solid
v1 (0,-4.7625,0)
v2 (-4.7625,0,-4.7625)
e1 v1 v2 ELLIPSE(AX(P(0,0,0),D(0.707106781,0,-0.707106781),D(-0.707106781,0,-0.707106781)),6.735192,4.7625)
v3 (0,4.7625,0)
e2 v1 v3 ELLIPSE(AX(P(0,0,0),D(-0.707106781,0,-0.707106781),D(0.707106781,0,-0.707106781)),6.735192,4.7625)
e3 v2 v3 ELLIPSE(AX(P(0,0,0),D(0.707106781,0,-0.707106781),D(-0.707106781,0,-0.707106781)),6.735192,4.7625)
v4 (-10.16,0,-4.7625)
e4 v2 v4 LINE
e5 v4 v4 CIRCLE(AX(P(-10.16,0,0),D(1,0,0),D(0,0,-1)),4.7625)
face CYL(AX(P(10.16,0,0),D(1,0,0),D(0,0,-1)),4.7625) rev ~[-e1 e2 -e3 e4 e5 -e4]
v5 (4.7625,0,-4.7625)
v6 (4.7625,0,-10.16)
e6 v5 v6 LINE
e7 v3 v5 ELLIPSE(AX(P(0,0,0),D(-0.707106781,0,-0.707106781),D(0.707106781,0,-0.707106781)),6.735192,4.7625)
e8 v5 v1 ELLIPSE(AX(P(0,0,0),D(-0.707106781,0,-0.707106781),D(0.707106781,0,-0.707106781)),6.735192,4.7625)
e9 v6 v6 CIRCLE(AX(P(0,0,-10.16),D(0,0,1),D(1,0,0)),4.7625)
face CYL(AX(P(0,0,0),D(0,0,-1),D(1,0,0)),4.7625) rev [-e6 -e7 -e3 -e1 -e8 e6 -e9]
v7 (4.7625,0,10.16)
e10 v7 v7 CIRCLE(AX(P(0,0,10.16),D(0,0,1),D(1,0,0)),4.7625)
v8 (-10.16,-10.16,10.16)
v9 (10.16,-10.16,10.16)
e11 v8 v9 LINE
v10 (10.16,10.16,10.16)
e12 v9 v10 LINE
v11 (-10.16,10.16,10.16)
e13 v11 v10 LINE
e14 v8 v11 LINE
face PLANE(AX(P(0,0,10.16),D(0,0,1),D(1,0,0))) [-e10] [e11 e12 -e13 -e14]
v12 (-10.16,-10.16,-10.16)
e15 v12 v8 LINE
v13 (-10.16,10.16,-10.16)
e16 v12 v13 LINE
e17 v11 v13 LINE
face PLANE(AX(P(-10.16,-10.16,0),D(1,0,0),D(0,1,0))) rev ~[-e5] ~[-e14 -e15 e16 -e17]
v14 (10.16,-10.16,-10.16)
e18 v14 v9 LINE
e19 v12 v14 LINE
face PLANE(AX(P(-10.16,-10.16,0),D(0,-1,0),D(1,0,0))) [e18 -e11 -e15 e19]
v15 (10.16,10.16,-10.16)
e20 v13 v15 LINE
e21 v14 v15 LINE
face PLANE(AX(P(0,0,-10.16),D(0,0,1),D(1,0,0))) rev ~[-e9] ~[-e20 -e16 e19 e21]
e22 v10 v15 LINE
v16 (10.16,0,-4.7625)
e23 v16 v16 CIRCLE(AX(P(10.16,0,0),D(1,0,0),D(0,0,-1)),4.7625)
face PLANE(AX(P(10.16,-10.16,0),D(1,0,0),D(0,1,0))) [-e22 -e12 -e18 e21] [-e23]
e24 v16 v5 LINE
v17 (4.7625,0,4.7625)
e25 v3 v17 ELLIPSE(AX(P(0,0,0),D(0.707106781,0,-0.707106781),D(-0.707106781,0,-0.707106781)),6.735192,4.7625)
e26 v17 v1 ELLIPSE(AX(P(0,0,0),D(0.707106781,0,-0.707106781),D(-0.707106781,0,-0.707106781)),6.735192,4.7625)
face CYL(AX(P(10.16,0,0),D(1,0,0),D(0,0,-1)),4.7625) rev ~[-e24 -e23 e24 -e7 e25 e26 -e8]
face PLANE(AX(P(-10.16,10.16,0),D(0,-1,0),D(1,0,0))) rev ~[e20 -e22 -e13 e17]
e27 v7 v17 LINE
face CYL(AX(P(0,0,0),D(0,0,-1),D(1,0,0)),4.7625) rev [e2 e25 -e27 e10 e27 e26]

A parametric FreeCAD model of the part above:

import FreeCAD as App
import Part
import Sketcher
from FreeCAD import Vector
Q = App.Units.Quantity


def add_polygon(sketch, points):
    """Adds a closed chain of lines whose ends are joined by coincident constraints."""
    first, n = sketch.GeometryCount, len(points)
    for a, b in zip(points, points[1:] + points[:1]):
        sketch.addGeometry(Part.LineSegment(App.Vector(*a, 0), App.Vector(*b, 0)), False)
    for i in range(n):
        sketch.addConstraint(Sketcher.Constraint("Coincident", first + i, 2, first + (i + 1) % n, 1))

doc = App.newDocument("Part")
params = doc.addObject("Spreadsheet::Sheet", "Params")
for row, (alias, value) in enumerate([
    ("sketch1_diameter", "0.375 in"),
    ("sketch1_width", "0.8 in"),
    ("pad1_length", "0.8 in"),
    ("sketch2_diameter", "0.375 in"),
], start=1):
    params.set(f"A{row}", alias)
    params.set(f"B{row}", "=" + value)
    params.setAlias(f"B{row}", alias)

body = doc.addObject("PartDesign::Body", "Body")

sketch1 = body.newObject("Sketcher::SketchObject", "Sketch")
sketch1.AttachmentSupport = (doc.getObject("XY_Plane"), [""])
sketch1.MapMode = "FlatFace"
add_polygon(sketch1, [(-10.2, 10.2), (-10.2, -10.2), (10.2, -10.2), (10.2, 10.2)])
sketch1.addGeometry(Part.Circle(Vector(0, 0, 0), Vector(0, 0, 1), 4.8), False)
sketch1.addConstraint([
    Sketcher.Constraint("Vertical", 0),
    Sketcher.Constraint("Horizontal", 1),
    Sketcher.Constraint("Vertical", 2),
    Sketcher.Constraint("Horizontal", 3),
    Sketcher.Constraint("Coincident", 4, 3, -1, 1),
    Sketcher.Constraint("Symmetric", 0, 2, 2, 2, -1, 1),
    Sketcher.Constraint("Equal", 3, 0),
    Sketcher.Constraint("Diameter", 4, Q("0.375 in")),
    Sketcher.Constraint("DistanceX", 1, 1, 1, 2, Q("0.8 in")),
])
sketch1.setExpression("Constraints[11]", "Params.sketch1_diameter")
sketch1.setExpression("Constraints[12]", "Params.sketch1_width")
pad1 = body.newObject("PartDesign::Pad", "Pad")
pad1.Profile = sketch1
pad1.setExpression("Length", "Params.pad1_length")
pad1.Midplane = True

sketch2 = body.newObject("Sketcher::SketchObject", "Sketch001")
sketch2.AttachmentSupport = (doc.getObject("YZ_Plane"), [""])
sketch2.MapMode = "FlatFace"
sketch2.AttachmentOffset = App.Placement(Vector(0, 0, 0.4 * 25.4), App.Rotation())
sketch2.addGeometry(Part.Circle(Vector(0, 0, 0), Vector(0, 0, 1), 4.8), False)
sketch2.addConstraint([
    Sketcher.Constraint("Coincident", 0, 3, -1, 1),
    Sketcher.Constraint("Diameter", 0, Q("0.375 in")),
])
sketch2.setExpression("Constraints[1]", "Params.sketch2_diameter")
pocket1 = body.newObject("PartDesign::Pocket", "Pocket")
pocket1.Profile = sketch2
pocket1.Type = "ThroughAll"

doc.recompute()
